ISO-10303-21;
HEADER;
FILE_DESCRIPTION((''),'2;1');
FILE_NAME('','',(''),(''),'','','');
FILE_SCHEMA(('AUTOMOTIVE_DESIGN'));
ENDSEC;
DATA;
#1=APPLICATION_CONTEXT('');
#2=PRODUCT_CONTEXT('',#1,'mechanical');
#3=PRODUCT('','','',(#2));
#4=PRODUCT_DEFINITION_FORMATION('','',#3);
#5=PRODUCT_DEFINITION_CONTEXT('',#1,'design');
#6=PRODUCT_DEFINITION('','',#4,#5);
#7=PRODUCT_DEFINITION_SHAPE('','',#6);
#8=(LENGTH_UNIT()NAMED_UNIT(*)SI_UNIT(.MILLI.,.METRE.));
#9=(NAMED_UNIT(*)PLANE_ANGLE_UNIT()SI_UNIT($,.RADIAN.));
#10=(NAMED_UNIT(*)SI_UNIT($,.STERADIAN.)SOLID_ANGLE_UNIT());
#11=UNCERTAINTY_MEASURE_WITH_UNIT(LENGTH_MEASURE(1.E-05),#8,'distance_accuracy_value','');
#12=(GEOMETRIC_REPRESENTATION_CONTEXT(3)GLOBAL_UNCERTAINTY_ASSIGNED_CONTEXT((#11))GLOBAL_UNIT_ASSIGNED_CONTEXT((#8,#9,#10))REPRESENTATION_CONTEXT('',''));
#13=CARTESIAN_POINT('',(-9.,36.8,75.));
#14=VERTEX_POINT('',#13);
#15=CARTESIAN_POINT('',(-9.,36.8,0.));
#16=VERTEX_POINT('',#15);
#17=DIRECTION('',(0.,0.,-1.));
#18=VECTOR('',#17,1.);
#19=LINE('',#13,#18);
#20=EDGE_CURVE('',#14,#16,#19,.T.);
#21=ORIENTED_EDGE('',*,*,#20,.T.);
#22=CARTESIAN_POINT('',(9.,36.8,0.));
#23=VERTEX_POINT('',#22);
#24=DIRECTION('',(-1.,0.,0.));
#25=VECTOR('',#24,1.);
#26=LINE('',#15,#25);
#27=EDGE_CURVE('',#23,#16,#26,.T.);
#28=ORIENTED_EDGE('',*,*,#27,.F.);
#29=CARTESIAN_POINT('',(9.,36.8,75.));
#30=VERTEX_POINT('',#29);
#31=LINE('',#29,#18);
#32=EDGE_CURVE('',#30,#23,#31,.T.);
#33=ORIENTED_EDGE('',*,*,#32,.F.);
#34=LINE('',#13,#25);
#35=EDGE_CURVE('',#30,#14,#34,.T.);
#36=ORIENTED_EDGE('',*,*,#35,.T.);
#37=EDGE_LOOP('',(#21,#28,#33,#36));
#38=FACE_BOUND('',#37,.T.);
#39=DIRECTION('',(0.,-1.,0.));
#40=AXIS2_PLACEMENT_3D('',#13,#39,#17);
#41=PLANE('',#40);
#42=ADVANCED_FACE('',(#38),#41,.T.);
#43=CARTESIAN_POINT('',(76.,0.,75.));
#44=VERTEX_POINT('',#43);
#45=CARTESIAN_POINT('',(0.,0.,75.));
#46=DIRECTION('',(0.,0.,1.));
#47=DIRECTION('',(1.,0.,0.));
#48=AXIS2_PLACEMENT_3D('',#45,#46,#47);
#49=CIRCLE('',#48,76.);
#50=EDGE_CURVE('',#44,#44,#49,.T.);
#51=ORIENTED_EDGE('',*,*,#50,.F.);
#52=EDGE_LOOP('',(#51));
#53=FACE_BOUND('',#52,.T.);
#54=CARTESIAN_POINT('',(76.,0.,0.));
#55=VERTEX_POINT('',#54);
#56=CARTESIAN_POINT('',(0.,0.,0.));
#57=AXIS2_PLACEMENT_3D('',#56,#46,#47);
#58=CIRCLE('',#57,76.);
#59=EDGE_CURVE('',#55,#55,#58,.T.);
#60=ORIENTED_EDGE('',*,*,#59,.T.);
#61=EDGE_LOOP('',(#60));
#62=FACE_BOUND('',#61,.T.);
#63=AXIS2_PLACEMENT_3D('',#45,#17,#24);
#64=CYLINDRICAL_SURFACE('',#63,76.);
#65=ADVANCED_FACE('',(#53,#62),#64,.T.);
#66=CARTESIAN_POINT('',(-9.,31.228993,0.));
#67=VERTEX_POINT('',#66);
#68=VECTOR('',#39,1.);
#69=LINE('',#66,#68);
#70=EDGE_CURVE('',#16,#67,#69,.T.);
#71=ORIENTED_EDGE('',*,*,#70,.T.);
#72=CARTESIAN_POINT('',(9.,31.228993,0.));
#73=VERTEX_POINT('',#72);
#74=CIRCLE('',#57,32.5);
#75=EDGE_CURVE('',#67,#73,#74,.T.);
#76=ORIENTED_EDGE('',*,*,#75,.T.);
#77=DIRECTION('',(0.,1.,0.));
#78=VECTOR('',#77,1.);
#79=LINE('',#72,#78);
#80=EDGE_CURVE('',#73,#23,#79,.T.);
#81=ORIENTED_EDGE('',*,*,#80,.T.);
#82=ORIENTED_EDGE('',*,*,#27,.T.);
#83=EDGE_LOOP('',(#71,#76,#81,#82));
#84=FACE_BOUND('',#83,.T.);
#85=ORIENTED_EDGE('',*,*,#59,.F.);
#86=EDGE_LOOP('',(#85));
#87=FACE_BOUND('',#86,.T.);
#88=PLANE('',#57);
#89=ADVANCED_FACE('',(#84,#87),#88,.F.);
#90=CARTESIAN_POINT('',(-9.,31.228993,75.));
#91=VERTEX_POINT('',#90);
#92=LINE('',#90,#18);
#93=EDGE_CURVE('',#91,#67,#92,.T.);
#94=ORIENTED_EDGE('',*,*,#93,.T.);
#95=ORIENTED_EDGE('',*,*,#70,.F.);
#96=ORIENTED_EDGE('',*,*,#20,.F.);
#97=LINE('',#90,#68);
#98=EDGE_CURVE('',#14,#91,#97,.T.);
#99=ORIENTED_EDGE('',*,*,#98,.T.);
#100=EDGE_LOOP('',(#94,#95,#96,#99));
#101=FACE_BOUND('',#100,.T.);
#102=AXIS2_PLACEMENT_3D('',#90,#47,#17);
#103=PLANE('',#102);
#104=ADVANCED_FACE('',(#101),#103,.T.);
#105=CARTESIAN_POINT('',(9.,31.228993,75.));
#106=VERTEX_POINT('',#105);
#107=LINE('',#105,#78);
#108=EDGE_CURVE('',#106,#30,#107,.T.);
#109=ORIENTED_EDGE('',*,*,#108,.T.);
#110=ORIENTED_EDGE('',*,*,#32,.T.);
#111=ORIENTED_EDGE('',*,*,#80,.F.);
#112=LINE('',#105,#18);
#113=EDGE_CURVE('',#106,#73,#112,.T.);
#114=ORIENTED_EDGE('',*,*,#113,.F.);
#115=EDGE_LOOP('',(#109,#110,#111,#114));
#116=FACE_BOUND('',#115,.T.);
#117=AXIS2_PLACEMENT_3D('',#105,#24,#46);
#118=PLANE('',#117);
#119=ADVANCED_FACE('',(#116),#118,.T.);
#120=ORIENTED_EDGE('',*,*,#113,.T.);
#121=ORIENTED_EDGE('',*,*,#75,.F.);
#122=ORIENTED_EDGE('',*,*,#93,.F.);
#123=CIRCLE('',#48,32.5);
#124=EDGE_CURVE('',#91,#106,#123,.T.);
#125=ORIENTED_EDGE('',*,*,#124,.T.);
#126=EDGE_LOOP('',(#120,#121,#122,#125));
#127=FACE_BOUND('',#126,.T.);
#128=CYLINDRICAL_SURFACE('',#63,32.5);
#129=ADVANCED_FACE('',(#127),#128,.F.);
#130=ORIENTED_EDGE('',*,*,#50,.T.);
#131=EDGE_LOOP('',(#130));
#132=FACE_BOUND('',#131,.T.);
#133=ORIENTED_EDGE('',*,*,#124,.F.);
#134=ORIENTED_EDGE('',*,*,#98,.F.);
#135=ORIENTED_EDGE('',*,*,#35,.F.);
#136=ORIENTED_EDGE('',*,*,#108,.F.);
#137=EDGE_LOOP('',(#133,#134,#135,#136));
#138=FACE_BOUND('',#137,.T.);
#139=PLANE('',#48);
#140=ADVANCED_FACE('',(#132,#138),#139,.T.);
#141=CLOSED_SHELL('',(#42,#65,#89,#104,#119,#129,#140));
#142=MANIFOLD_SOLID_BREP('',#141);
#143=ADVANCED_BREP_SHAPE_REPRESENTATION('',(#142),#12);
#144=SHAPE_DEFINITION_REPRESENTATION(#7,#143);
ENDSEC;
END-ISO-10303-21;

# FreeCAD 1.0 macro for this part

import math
import FreeCAD as App
import Part
import Sketcher
Q = App.Units.Quantity

doc = App.newDocument("Part")
body = doc.addObject("PartDesign::Body", "Body")

sketch1 = body.newObject("Sketcher::SketchObject", "Sketch")
sketch1.AttachmentSupport = (doc.getObject("XY_Plane"), [""])
sketch1.MapMode = "FlatFace"
sketch1.addGeometry(Part.Circle(App.Vector(0, 0, 0), App.Vector(0, 0, 1), 76), False)
sketch1.addGeometry(Part.ArcOfCircle(Part.Circle(App.Vector(0, 0, 0), App.Vector(0, 0, 1), 32), math.radians(106), math.radians(434)), False)
sketch1.addGeometry(Part.LineSegment(App.Vector(-9, 31, 0), App.Vector(-9, 37, 0)), False)
sketch1.addGeometry(Part.LineSegment(App.Vector(-9, 37, 0), App.Vector(9, 37, 0)), False)
sketch1.addGeometry(Part.LineSegment(App.Vector(9, 37, 0), App.Vector(9, 31, 0)), False)
sketch1.addConstraint(Sketcher.Constraint("Coincident", 1, 1, 2, 1))
sketch1.addConstraint(Sketcher.Constraint("Coincident", 2, 2, 3, 1))
sketch1.addConstraint(Sketcher.Constraint("Coincident", 3, 2, 4, 1))
sketch1.addConstraint(Sketcher.Constraint("Coincident", 4, 2, 1, 2))
sketch1.addConstraint(Sketcher.Constraint("Vertical", 2))
sketch1.addConstraint(Sketcher.Constraint("Horizontal", 3))
sketch1.addConstraint(Sketcher.Constraint("Vertical", 4))
sketch1.addConstraint(Sketcher.Constraint("Coincident", 0, 3, -1, 1))
sketch1.addConstraint(Sketcher.Constraint("Coincident", 1, 3, -1, 1))
sketch1.addConstraint(Sketcher.Constraint("Horizontal", 1, 1, 4, 2))
sketch1.addConstraint(Sketcher.Constraint("Diameter", 0, Q("152 mm")))
sketch1.addConstraint(Sketcher.Constraint("Radius", 1, Q("32.5 mm")))
sketch1.addConstraint(Sketcher.Constraint("DistanceX", 3, 1, 3, 2, Q("18 mm")))
sketch1.addConstraint(Sketcher.Constraint("DistanceY", -1, 1, 2, 2, Q("36.8 mm")))
pad1 = body.newObject("PartDesign::Pad", "Pad")
pad1.Profile = sketch1
pad1.Length = 75

doc.recompute()
